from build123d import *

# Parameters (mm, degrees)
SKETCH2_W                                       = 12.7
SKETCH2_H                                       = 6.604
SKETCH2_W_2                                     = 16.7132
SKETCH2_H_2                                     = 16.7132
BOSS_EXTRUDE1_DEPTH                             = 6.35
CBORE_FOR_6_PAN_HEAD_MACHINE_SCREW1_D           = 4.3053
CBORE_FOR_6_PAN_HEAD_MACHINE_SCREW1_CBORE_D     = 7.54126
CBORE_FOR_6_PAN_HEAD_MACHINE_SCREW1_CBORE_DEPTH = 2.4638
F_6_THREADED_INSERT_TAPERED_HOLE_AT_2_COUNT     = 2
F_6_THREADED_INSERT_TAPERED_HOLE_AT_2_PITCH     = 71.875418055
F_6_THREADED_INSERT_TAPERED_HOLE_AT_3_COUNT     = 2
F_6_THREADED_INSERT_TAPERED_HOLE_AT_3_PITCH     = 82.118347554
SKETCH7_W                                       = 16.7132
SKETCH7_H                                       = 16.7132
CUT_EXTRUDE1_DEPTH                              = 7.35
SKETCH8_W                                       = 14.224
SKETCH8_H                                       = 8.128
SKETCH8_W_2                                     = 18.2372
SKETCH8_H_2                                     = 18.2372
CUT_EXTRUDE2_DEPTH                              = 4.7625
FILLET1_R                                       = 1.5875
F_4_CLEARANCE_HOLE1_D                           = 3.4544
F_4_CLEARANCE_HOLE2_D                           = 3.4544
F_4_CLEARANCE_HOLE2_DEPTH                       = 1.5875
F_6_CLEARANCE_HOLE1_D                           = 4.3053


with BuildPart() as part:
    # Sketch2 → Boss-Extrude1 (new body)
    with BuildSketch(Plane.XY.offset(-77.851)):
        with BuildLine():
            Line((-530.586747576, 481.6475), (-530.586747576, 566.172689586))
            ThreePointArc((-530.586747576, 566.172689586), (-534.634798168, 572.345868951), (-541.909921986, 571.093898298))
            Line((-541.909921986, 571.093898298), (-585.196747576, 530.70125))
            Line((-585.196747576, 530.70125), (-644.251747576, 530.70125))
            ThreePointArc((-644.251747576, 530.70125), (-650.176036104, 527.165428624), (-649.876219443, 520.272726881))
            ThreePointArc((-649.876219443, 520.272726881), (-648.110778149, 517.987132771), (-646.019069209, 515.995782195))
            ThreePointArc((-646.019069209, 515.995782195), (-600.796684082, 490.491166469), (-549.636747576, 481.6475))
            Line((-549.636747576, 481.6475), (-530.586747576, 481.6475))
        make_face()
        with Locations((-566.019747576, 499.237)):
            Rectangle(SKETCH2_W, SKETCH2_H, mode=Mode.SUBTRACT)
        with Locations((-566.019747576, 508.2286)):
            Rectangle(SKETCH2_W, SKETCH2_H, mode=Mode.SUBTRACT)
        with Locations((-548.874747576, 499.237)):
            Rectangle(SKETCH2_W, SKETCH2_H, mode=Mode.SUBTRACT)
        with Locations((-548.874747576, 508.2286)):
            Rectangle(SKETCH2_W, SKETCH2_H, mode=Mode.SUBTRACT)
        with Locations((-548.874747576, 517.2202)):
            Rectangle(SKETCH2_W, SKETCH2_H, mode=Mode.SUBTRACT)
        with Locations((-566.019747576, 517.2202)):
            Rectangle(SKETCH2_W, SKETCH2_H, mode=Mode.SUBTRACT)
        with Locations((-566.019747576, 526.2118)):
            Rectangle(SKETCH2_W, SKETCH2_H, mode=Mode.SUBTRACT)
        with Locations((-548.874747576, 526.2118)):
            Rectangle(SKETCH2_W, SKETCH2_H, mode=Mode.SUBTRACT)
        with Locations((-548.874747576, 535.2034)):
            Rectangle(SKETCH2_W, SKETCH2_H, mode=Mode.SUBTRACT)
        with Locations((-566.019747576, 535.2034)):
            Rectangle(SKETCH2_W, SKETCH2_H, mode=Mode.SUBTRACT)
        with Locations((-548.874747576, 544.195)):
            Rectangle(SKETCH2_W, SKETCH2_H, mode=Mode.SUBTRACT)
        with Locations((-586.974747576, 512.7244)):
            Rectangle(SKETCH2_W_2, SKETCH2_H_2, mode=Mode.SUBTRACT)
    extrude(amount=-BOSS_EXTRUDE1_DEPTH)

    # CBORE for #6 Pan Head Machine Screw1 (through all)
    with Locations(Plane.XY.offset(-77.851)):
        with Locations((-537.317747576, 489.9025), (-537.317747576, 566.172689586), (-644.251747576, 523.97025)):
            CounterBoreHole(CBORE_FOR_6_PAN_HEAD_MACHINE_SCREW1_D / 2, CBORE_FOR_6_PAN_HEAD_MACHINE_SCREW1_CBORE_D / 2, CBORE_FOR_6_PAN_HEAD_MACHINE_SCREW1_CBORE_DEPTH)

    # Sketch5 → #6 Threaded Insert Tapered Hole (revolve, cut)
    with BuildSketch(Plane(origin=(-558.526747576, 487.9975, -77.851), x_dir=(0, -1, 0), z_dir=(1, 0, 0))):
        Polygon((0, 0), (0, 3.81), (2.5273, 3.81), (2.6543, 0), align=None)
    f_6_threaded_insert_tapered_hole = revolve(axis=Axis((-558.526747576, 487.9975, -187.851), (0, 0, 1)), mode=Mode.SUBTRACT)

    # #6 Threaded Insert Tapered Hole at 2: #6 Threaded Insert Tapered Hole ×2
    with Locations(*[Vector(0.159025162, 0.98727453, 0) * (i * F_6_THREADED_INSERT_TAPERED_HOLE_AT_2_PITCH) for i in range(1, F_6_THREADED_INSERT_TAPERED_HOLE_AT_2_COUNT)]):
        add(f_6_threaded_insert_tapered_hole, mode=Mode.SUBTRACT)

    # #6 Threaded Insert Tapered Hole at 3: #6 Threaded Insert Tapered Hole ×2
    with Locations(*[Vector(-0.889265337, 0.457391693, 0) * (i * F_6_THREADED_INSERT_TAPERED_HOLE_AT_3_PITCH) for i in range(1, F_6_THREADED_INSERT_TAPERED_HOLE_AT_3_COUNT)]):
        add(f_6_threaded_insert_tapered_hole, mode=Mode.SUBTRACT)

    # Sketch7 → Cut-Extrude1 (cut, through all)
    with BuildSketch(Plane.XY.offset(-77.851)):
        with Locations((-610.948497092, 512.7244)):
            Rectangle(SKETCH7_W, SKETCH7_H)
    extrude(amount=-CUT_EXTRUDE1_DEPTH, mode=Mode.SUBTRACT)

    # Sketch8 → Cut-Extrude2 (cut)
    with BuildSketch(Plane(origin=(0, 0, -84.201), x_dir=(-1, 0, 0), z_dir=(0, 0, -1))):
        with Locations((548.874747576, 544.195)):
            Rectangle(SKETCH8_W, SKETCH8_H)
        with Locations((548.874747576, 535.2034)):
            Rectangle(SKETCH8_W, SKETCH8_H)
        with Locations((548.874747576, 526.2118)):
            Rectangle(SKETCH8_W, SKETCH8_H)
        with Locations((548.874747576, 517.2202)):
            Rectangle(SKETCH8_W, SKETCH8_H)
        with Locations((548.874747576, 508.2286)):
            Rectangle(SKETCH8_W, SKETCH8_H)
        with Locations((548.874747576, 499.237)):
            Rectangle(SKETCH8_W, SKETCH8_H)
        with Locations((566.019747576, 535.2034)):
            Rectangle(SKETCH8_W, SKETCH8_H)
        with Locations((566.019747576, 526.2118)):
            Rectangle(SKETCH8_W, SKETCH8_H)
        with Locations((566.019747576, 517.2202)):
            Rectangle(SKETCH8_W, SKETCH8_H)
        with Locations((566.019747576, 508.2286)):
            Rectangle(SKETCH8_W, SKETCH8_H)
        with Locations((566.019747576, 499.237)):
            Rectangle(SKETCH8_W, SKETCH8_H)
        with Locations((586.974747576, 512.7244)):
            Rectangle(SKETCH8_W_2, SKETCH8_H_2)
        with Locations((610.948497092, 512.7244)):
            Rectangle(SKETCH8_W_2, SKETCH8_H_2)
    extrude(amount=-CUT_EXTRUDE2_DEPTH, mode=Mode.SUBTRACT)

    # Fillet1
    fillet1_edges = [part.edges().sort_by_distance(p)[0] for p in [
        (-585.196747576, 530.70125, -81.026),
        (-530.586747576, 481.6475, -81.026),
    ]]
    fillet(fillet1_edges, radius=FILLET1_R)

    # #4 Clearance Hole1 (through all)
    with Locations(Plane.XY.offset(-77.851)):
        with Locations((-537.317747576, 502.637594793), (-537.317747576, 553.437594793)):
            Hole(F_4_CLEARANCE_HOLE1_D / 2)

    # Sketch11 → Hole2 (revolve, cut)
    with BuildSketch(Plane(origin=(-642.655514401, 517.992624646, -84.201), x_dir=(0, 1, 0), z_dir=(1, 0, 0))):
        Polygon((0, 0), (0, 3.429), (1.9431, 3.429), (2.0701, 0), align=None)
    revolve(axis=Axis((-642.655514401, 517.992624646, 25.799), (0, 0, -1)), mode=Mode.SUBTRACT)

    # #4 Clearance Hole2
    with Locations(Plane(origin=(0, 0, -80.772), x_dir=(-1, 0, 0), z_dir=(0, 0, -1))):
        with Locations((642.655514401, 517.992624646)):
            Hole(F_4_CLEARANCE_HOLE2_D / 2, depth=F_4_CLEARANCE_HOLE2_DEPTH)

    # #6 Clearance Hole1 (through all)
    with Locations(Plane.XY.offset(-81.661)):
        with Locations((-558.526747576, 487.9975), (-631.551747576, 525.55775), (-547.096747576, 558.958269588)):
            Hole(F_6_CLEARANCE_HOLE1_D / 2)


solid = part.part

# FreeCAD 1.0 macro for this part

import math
import FreeCAD as App
import Part
import Sketcher
from FreeCAD import Vector
Q = App.Units.Quantity


def edges_at(feature, points):
    """Names of the edges that pass closest to the given points."""
    edges = feature.Shape.Edges
    near = lambda p: min(range(len(edges)), key=lambda i: edges[i].distToShape(Part.Vertex(*p))[0])
    return sorted({f"Edge{near(p) + 1}" for p in points})

doc = App.newDocument("Part")
params = doc.addObject("Spreadsheet::Sheet", "Params")
for row, (alias, value) in enumerate([
    ("sketch1_radius", "6 in"),
    ("sketch1_width", "0.5 in"),
    ("sketch1_radius2", "0.265 in"),
    ("sketch1_width2", "0.75 in"),
    ("sketch1_height", "0.26 in"),
    ("pad1_length", "0.25 in"),
    ("hole_diameter", "0.1695 in"),
    ("hole_cbore_diameter", "0.2969 in"),
    ("hole_cbore_depth", "0.097 in"),
    ("sketch3_height", "0.15 in"),
    ("groove_angle", "360 deg"),
    ("linearpattern_pitch", "71.875418 mm"),
    ("linearpattern2_pitch", "82.118348 mm"),
    ("sketch4_width", "0.658 in"),
    ("sketch5_width", "0.56 in"),
    ("sketch5_height", "0.32 in"),
    ("sketch5_width2", "0.718 in"),
    ("pocket2_length", "0.1875 in"),
    ("fillet_radius", "0.0625 in"),
    ("sketch6_diameter", "0.136 in"),
    ("hole2_diameter", "0.136 in"),
    ("sketch7_height", "0.135 in"),
    ("groove2_angle", "360 deg"),
    ("sketch8_diameter", "0.136 in"),
    ("hole3_diameter", "0.136 in"),
    ("hole3_depth", "0.0625 in"),
    ("hole4_diameter", "0.1695 in"),
], start=1):
    params.set(f"A{row}", alias)
    params.set(f"B{row}", "=" + value)
    params.setAlias(f"B{row}", alias)

body = doc.addObject("PartDesign::Body", "Body")

sketch1 = doc.addObject("Sketcher::SketchObject", "Sketch")
body.addObject(sketch1)
sketch1.AttachmentSupport = (doc.XY_Plane, [""])
sketch1.MapMode = "FlatFace"
sketch1.AttachmentOffset = App.Placement(Vector(0, 0, -3.065 * 25.4), App.Rotation())
sketch1.addGeometry(Part.LineSegment(Vector(-531, 482, 0), Vector(-531, 566, 0)), False)
sketch1.addGeometry(Part.ArcOfCircle(Part.Circle(Vector(-537, 566, 0), Vector(0, 0, 1), 7), math.radians(0), math.radians(133)), False)
sketch1.addGeometry(Part.LineSegment(Vector(-542, 571, 0), Vector(-585, 531, 0)), False)
sketch1.addGeometry(Part.LineSegment(Vector(-585, 531, 0), Vector(-644, 531, 0)), False)
sketch1.addGeometry(Part.ArcOfCircle(Part.Circle(Vector(-644, 524, 0), Vector(0, 0, 1), 7), math.radians(90), math.radians(213)), False)
sketch1.addGeometry(Part.ArcOfCircle(Part.Circle(Vector(-634, 531, 0), Vector(0, 0, 1), 19), math.radians(-146.68), math.radians(-129.23)), False)
sketch1.addGeometry(Part.ArcOfCircle(Part.Circle(Vector(-550, 634, 0), Vector(0, 0, 1), 152), math.radians(-129), math.radians(-90)), False)
sketch1.addGeometry(Part.LineSegment(Vector(-550, 482, 0), Vector(-531, 482, 0)), False)
sketch1.addGeometry(Part.LineSegment(Vector(-579, 504, 0), Vector(-595, 504, 0)), False)
sketch1.addGeometry(Part.LineSegment(Vector(-595, 504, 0), Vector(-595, 521, 0)), False)
sketch1.addGeometry(Part.LineSegment(Vector(-595, 521, 0), Vector(-579, 521, 0)), False)
sketch1.addGeometry(Part.LineSegment(Vector(-579, 521, 0), Vector(-579, 504, 0)), False)
sketch1.addGeometry(Part.LineSegment(Vector(-560, 496, 0), Vector(-572, 496, 0)), False)
sketch1.addGeometry(Part.LineSegment(Vector(-572, 496, 0), Vector(-572, 503, 0)), False)
sketch1.addGeometry(Part.LineSegment(Vector(-572, 503, 0), Vector(-560, 503, 0)), False)
sketch1.addGeometry(Part.LineSegment(Vector(-560, 503, 0), Vector(-560, 496, 0)), False)
sketch1.addGeometry(Part.LineSegment(Vector(-560, 505, 0), Vector(-572, 505, 0)), False)
sketch1.addGeometry(Part.LineSegment(Vector(-572, 505, 0), Vector(-572, 512, 0)), False)
sketch1.addGeometry(Part.LineSegment(Vector(-572, 512, 0), Vector(-560, 512, 0)), False)
sketch1.addGeometry(Part.LineSegment(Vector(-560, 512, 0), Vector(-560, 505, 0)), False)
sketch1.addGeometry(Part.LineSegment(Vector(-543, 496, 0), Vector(-555, 496, 0)), False)
sketch1.addGeometry(Part.LineSegment(Vector(-555, 496, 0), Vector(-555, 503, 0)), False)
sketch1.addGeometry(Part.LineSegment(Vector(-555, 503, 0), Vector(-543, 503, 0)), False)
sketch1.addGeometry(Part.LineSegment(Vector(-543, 503, 0), Vector(-543, 496, 0)), False)
sketch1.addGeometry(Part.LineSegment(Vector(-543, 505, 0), Vector(-555, 505, 0)), False)
sketch1.addGeometry(Part.LineSegment(Vector(-555, 505, 0), Vector(-555, 512, 0)), False)
sketch1.addGeometry(Part.LineSegment(Vector(-555, 512, 0), Vector(-543, 512, 0)), False)
sketch1.addGeometry(Part.LineSegment(Vector(-543, 512, 0), Vector(-543, 505, 0)), False)
sketch1.addGeometry(Part.LineSegment(Vector(-560, 514, 0), Vector(-572, 514, 0)), False)
sketch1.addGeometry(Part.LineSegment(Vector(-572, 514, 0), Vector(-572, 521, 0)), False)
sketch1.addGeometry(Part.LineSegment(Vector(-572, 521, 0), Vector(-560, 521, 0)), False)
sketch1.addGeometry(Part.LineSegment(Vector(-560, 521, 0), Vector(-560, 514, 0)), False)
sketch1.addGeometry(Part.LineSegment(Vector(-543, 514, 0), Vector(-555, 514, 0)), False)
sketch1.addGeometry(Part.LineSegment(Vector(-555, 514, 0), Vector(-555, 521, 0)), False)
sketch1.addGeometry(Part.LineSegment(Vector(-555, 521, 0), Vector(-543, 521, 0)), False)
sketch1.addGeometry(Part.LineSegment(Vector(-543, 521, 0), Vector(-543, 514, 0)), False)
sketch1.addGeometry(Part.LineSegment(Vector(-560, 523, 0), Vector(-572, 523, 0)), False)
sketch1.addGeometry(Part.LineSegment(Vector(-572, 523, 0), Vector(-572, 530, 0)), False)
sketch1.addGeometry(Part.LineSegment(Vector(-572, 530, 0), Vector(-560, 530, 0)), False)
sketch1.addGeometry(Part.LineSegment(Vector(-560, 530, 0), Vector(-560, 523, 0)), False)
sketch1.addGeometry(Part.LineSegment(Vector(-543, 523, 0), Vector(-555, 523, 0)), False)
sketch1.addGeometry(Part.LineSegment(Vector(-555, 523, 0), Vector(-555, 530, 0)), False)
sketch1.addGeometry(Part.LineSegment(Vector(-555, 530, 0), Vector(-543, 530, 0)), False)
sketch1.addGeometry(Part.LineSegment(Vector(-543, 530, 0), Vector(-543, 523, 0)), False)
sketch1.addGeometry(Part.LineSegment(Vector(-560, 532, 0), Vector(-572, 532, 0)), False)
sketch1.addGeometry(Part.LineSegment(Vector(-572, 532, 0), Vector(-572, 539, 0)), False)
sketch1.addGeometry(Part.LineSegment(Vector(-572, 539, 0), Vector(-560, 539, 0)), False)
sketch1.addGeometry(Part.LineSegment(Vector(-560, 539, 0), Vector(-560, 532, 0)), False)
sketch1.addGeometry(Part.LineSegment(Vector(-543, 532, 0), Vector(-555, 532, 0)), False)
sketch1.addGeometry(Part.LineSegment(Vector(-555, 532, 0), Vector(-555, 539, 0)), False)
sketch1.addGeometry(Part.LineSegment(Vector(-555, 539, 0), Vector(-543, 539, 0)), False)
sketch1.addGeometry(Part.LineSegment(Vector(-543, 539, 0), Vector(-543, 532, 0)), False)
sketch1.addGeometry(Part.LineSegment(Vector(-543, 541, 0), Vector(-555, 541, 0)), False)
sketch1.addGeometry(Part.LineSegment(Vector(-555, 541, 0), Vector(-555, 547, 0)), False)
sketch1.addGeometry(Part.LineSegment(Vector(-555, 547, 0), Vector(-543, 547, 0)), False)
sketch1.addGeometry(Part.LineSegment(Vector(-543, 547, 0), Vector(-543, 541, 0)), False)
sketch1.addConstraint(Sketcher.Constraint("Tangent", 0, 2, 1, 1))
sketch1.addConstraint(Sketcher.Constraint("Tangent", 1, 2, 2, 1))
sketch1.addConstraint(Sketcher.Constraint("Coincident", 2, 2, 3, 1))
sketch1.addConstraint(Sketcher.Constraint("Tangent", 3, 2, 4, 1))
sketch1.addConstraint(Sketcher.Constraint("Tangent", 4, 2, 5, 1))
sketch1.addConstraint(Sketcher.Constraint("Tangent", 5, 2, 6, 1))
sketch1.addConstraint(Sketcher.Constraint("Tangent", 6, 2, 7, 1))
sketch1.addConstraint(Sketcher.Constraint("Coincident", 7, 2, 0, 1))
sketch1.addConstraint(Sketcher.Constraint("Coincident", 8, 2, 9, 1))
sketch1.addConstraint(Sketcher.Constraint("Coincident", 9, 2, 10, 1))
sketch1.addConstraint(Sketcher.Constraint("Coincident", 10, 2, 11, 1))
sketch1.addConstraint(Sketcher.Constraint("Coincident", 11, 2, 8, 1))
sketch1.addConstraint(Sketcher.Constraint("Coincident", 12, 2, 13, 1))
sketch1.addConstraint(Sketcher.Constraint("Coincident", 13, 2, 14, 1))
sketch1.addConstraint(Sketcher.Constraint("Coincident", 14, 2, 15, 1))
sketch1.addConstraint(Sketcher.Constraint("Coincident", 15, 2, 12, 1))
sketch1.addConstraint(Sketcher.Constraint("Coincident", 16, 2, 17, 1))
sketch1.addConstraint(Sketcher.Constraint("Coincident", 17, 2, 18, 1))
sketch1.addConstraint(Sketcher.Constraint("Coincident", 18, 2, 19, 1))
sketch1.addConstraint(Sketcher.Constraint("Coincident", 19, 2, 16, 1))
sketch1.addConstraint(Sketcher.Constraint("Coincident", 20, 2, 21, 1))
sketch1.addConstraint(Sketcher.Constraint("Coincident", 21, 2, 22, 1))
sketch1.addConstraint(Sketcher.Constraint("Coincident", 22, 2, 23, 1))
sketch1.addConstraint(Sketcher.Constraint("Coincident", 23, 2, 20, 1))
sketch1.addConstraint(Sketcher.Constraint("Coincident", 24, 2, 25, 1))
sketch1.addConstraint(Sketcher.Constraint("Coincident", 25, 2, 26, 1))
sketch1.addConstraint(Sketcher.Constraint("Coincident", 26, 2, 27, 1))
sketch1.addConstraint(Sketcher.Constraint("Coincident", 27, 2, 24, 1))
sketch1.addConstraint(Sketcher.Constraint("Coincident", 28, 2, 29, 1))
sketch1.addConstraint(Sketcher.Constraint("Coincident", 29, 2, 30, 1))
sketch1.addConstraint(Sketcher.Constraint("Coincident", 30, 2, 31, 1))
sketch1.addConstraint(Sketcher.Constraint("Coincident", 31, 2, 28, 1))
sketch1.addConstraint(Sketcher.Constraint("Coincident", 32, 2, 33, 1))
sketch1.addConstraint(Sketcher.Constraint("Coincident", 33, 2, 34, 1))
sketch1.addConstraint(Sketcher.Constraint("Coincident", 34, 2, 35, 1))
sketch1.addConstraint(Sketcher.Constraint("Coincident", 35, 2, 32, 1))
sketch1.addConstraint(Sketcher.Constraint("Coincident", 36, 2, 37, 1))
sketch1.addConstraint(Sketcher.Constraint("Coincident", 37, 2, 38, 1))
sketch1.addConstraint(Sketcher.Constraint("Coincident", 38, 2, 39, 1))
sketch1.addConstraint(Sketcher.Constraint("Coincident", 39, 2, 36, 1))
sketch1.addConstraint(Sketcher.Constraint("Coincident", 40, 2, 41, 1))
sketch1.addConstraint(Sketcher.Constraint("Coincident", 41, 2, 42, 1))
sketch1.addConstraint(Sketcher.Constraint("Coincident", 42, 2, 43, 1))
sketch1.addConstraint(Sketcher.Constraint("Coincident", 43, 2, 40, 1))
sketch1.addConstraint(Sketcher.Constraint("Coincident", 44, 2, 45, 1))
sketch1.addConstraint(Sketcher.Constraint("Coincident", 45, 2, 46, 1))
sketch1.addConstraint(Sketcher.Constraint("Coincident", 46, 2, 47, 1))
sketch1.addConstraint(Sketcher.Constraint("Coincident", 47, 2, 44, 1))
sketch1.addConstraint(Sketcher.Constraint("Coincident", 48, 2, 49, 1))
sketch1.addConstraint(Sketcher.Constraint("Coincident", 49, 2, 50, 1))
sketch1.addConstraint(Sketcher.Constraint("Coincident", 50, 2, 51, 1))
sketch1.addConstraint(Sketcher.Constraint("Coincident", 51, 2, 48, 1))
sketch1.addConstraint(Sketcher.Constraint("Coincident", 52, 2, 53, 1))
sketch1.addConstraint(Sketcher.Constraint("Coincident", 53, 2, 54, 1))
sketch1.addConstraint(Sketcher.Constraint("Coincident", 54, 2, 55, 1))
sketch1.addConstraint(Sketcher.Constraint("Coincident", 55, 2, 52, 1))
sketch1.addConstraint(Sketcher.Constraint("Vertical", 0))
sketch1.addConstraint(Sketcher.Constraint("Horizontal", 3))
sketch1.addConstraint(Sketcher.Constraint("Horizontal", 7))
sketch1.addConstraint(Sketcher.Constraint("Horizontal", 8))
sketch1.addConstraint(Sketcher.Constraint("Vertical", 9))
sketch1.addConstraint(Sketcher.Constraint("Horizontal", 10))
sketch1.addConstraint(Sketcher.Constraint("Vertical", 11))
sketch1.addConstraint(Sketcher.Constraint("Horizontal", 12))
sketch1.addConstraint(Sketcher.Constraint("Vertical", 13))
sketch1.addConstraint(Sketcher.Constraint("Horizontal", 14))
sketch1.addConstraint(Sketcher.Constraint("Vertical", 15))
sketch1.addConstraint(Sketcher.Constraint("Horizontal", 16))
sketch1.addConstraint(Sketcher.Constraint("Vertical", 17))
sketch1.addConstraint(Sketcher.Constraint("Horizontal", 18))
sketch1.addConstraint(Sketcher.Constraint("Vertical", 19))
sketch1.addConstraint(Sketcher.Constraint("Horizontal", 20))
sketch1.addConstraint(Sketcher.Constraint("Vertical", 21))
sketch1.addConstraint(Sketcher.Constraint("Horizontal", 22))
sketch1.addConstraint(Sketcher.Constraint("Vertical", 23))
sketch1.addConstraint(Sketcher.Constraint("Horizontal", 24))
sketch1.addConstraint(Sketcher.Constraint("Vertical", 25))
sketch1.addConstraint(Sketcher.Constraint("Horizontal", 26))
sketch1.addConstraint(Sketcher.Constraint("Vertical", 27))
sketch1.addConstraint(Sketcher.Constraint("Horizontal", 28))
sketch1.addConstraint(Sketcher.Constraint("Vertical", 29))
sketch1.addConstraint(Sketcher.Constraint("Horizontal", 30))
sketch1.addConstraint(Sketcher.Constraint("Vertical", 31))
sketch1.addConstraint(Sketcher.Constraint("Horizontal", 32))
sketch1.addConstraint(Sketcher.Constraint("Vertical", 33))
sketch1.addConstraint(Sketcher.Constraint("Horizontal", 34))
sketch1.addConstraint(Sketcher.Constraint("Vertical", 35))
sketch1.addConstraint(Sketcher.Constraint("Horizontal", 36))
sketch1.addConstraint(Sketcher.Constraint("Vertical", 37))
sketch1.addConstraint(Sketcher.Constraint("Horizontal", 38))
sketch1.addConstraint(Sketcher.Constraint("Vertical", 39))
sketch1.addConstraint(Sketcher.Constraint("Horizontal", 40))
sketch1.addConstraint(Sketcher.Constraint("Vertical", 41))
sketch1.addConstraint(Sketcher.Constraint("Horizontal", 42))
sketch1.addConstraint(Sketcher.Constraint("Vertical", 43))
sketch1.addConstraint(Sketcher.Constraint("Horizontal", 44))
sketch1.addConstraint(Sketcher.Constraint("Vertical", 45))
sketch1.addConstraint(Sketcher.Constraint("Horizontal", 46))
sketch1.addConstraint(Sketcher.Constraint("Vertical", 47))
sketch1.addConstraint(Sketcher.Constraint("Horizontal", 48))
sketch1.addConstraint(Sketcher.Constraint("Vertical", 49))
sketch1.addConstraint(Sketcher.Constraint("Horizontal", 50))
sketch1.addConstraint(Sketcher.Constraint("Vertical", 51))
sketch1.addConstraint(Sketcher.Constraint("Horizontal", 52))
sketch1.addConstraint(Sketcher.Constraint("Vertical", 53))
sketch1.addConstraint(Sketcher.Constraint("Horizontal", 54))
sketch1.addConstraint(Sketcher.Constraint("Vertical", 55))
sketch1.addConstraint(Sketcher.Constraint("Equal", 1, 4))
sketch1.addConstraint(Sketcher.Constraint("Horizontal", 5, 3, 2, 2))
sketch1.addConstraint(Sketcher.Constraint("Horizontal", 15, 2, 20, 2))
sketch1.addConstraint(Sketcher.Constraint("Horizontal", 14, 2, 21, 2))
sketch1.addConstraint(Sketcher.Constraint("Horizontal", 19, 2, 24, 2))
sketch1.addConstraint(Sketcher.Constraint("Horizontal", 18, 2, 25, 2))
sketch1.addConstraint(Sketcher.Constraint("Horizontal", 31, 2, 32, 2))
sketch1.addConstraint(Sketcher.Constraint("Horizontal", 30, 2, 33, 2))
sketch1.addConstraint(Sketcher.Constraint("Horizontal", 39, 2, 40, 2))
sketch1.addConstraint(Sketcher.Constraint("Horizontal", 38, 2, 41, 2))
sketch1.addConstraint(Sketcher.Constraint("Horizontal", 47, 2, 48, 2))
sketch1.addConstraint(Sketcher.Constraint("Horizontal", 46, 2, 49, 2))
sketch1.addConstraint(Sketcher.Constraint("Vertical", 13, 2, 16, 2))
sketch1.addConstraint(Sketcher.Constraint("Vertical", 15, 2, 18, 2))
sketch1.addConstraint(Sketcher.Constraint("Vertical", 21, 2, 24, 2))
sketch1.addConstraint(Sketcher.Constraint("Vertical", 23, 2, 26, 2))
sketch1.addConstraint(Sketcher.Constraint("Vertical", 17, 2, 28, 2))
sketch1.addConstraint(Sketcher.Constraint("Vertical", 19, 2, 30, 2))
sketch1.addConstraint(Sketcher.Constraint("Vertical", 25, 2, 32, 2))
sketch1.addConstraint(Sketcher.Constraint("Vertical", 27, 2, 34, 2))
sketch1.addConstraint(Sketcher.Constraint("Vertical", 29, 2, 36, 2))
sketch1.addConstraint(Sketcher.Constraint("Vertical", 31, 2, 38, 2))
sketch1.addConstraint(Sketcher.Constraint("Vertical", 33, 2, 40, 2))
sketch1.addConstraint(Sketcher.Constraint("Vertical", 35, 2, 42, 2))
sketch1.addConstraint(Sketcher.Constraint("Vertical", 37, 2, 44, 2))
sketch1.addConstraint(Sketcher.Constraint("Vertical", 39, 2, 46, 2))
sketch1.addConstraint(Sketcher.Constraint("Vertical", 41, 2, 48, 2))
sketch1.addConstraint(Sketcher.Constraint("Vertical", 43, 2, 50, 2))
sketch1.addConstraint(Sketcher.Constraint("Vertical", 49, 2, 52, 2))
sketch1.addConstraint(Sketcher.Constraint("Vertical", 51, 2, 54, 2))
sketch1.addConstraint(Sketcher.Constraint("Equal", 18, 20))
sketch1.addConstraint(Sketcher.Constraint("Equal", 10, 9))
sketch1.addConstraint(Sketcher.Constraint("Equal", 15, 17))
sketch1.addConstraint(Sketcher.Constraint("Equal", 27, 29))
sketch1.addConstraint(Sketcher.Constraint("Equal", 35, 37))
sketch1.addConstraint(Sketcher.Constraint("Equal", 43, 45))
sketch1.addConstraint(Sketcher.Constraint("Equal", 51, 53))
sketch1.addConstraint(Sketcher.Constraint("Radius", 6, Q("6 in")))
sketch1.addConstraint(Sketcher.Constraint("DistanceX", 12, 2, 12, 1, Q("0.5 in")))
sketch1.addConstraint(Sketcher.Constraint("Radius", 1, Q("0.265 in")))
sketch1.addConstraint(Sketcher.Constraint("DistanceX", 7, 1, 7, 2, Q("0.75 in")))
sketch1.addConstraint(Sketcher.Constraint("DistanceY", 13, 1, 13, 2, Q("0.26 in")))
sketch1.addConstraint(Sketcher.Constraint("DistanceX", 2, 2, 6, 2, Q("1.4 in")))
sketch1.addConstraint(Sketcher.Constraint("DistanceX", 3, 2, 3, 1, Q("2.325 in")))
sketch1.addConstraint(Sketcher.Constraint("DistanceX", 8, 2, 8, 1, Q("0.658 in")))
sketch1.addConstraint(Sketcher.Constraint("DistanceY", 12, 2, 10, 2, Q("0.99 in")))
sketch1.addConstraint(Sketcher.Constraint("DistanceX", 20, 2, 6, 2, Q("0.22 in")))
sketch1.addConstraint(Sketcher.Constraint("DistanceY", -1, 1, 8, 2, Q("19.857 in")))
sketch1.addConstraint(Sketcher.Constraint("DistanceY", -1, 1, 16, 2, Q("19.879 in")))
sketch1.addConstraint(Sketcher.Constraint("DistanceY", -1, 1, 28, 2, Q("20.233 in")))
sketch1.addConstraint(Sketcher.Constraint("DistanceY", -1, 1, 36, 2, Q("20.587 in")))
sketch1.addConstraint(Sketcher.Constraint("DistanceY", -1, 1, 44, 2, Q("20.941 in")))
sketch1.addConstraint(Sketcher.Constraint("DistanceY", -1, 1, 52, 2, Q("21.295 in")))
sketch1.addConstraint(Sketcher.Constraint("DistanceX", 8, 2, 2, 2, Q("0.399 in")))
sketch1.addConstraint(Sketcher.Constraint("DistanceX", 11, 2, 12, 2, Q("0.246 in")))
sketch1.addConstraint(Sketcher.Constraint("DistanceY", 6, 2, 12, 2, Q("0.5625 in")))
sketch1.addConstraint(Sketcher.Constraint("Radius", 5, 18.984165))
sketch1.addConstraint(Sketcher.Constraint("DistanceY", 0, 1, 0, 2, 84.52519))
sketch1.addConstraint(Sketcher.Constraint("DistanceX", 1, 2, -1, 1, 541.909922))
sketch1.setExpression("Constraints[144]", "Params.sketch1_radius")
sketch1.setExpression("Constraints[145]", "Params.sketch1_width")
sketch1.setExpression("Constraints[146]", "Params.sketch1_radius2")
sketch1.setExpression("Constraints[147]", "Params.sketch1_width2")
sketch1.setExpression("Constraints[148]", "Params.sketch1_height")
pad1 = doc.addObject("PartDesign::Pad", "Pad")
body.addObject(pad1)
pad1.Profile = sketch1
pad1.setExpression("Length", "Params.pad1_length")
pad1.Reversed = True

sketch2 = doc.addObject("Sketcher::SketchObject", "Sketch001")
body.addObject(sketch2)
sketch2.AttachmentSupport = (doc.XY_Plane, [""])
sketch2.MapMode = "FlatFace"
sketch2.AttachmentOffset = App.Placement(Vector(0, 0, -3.065 * 25.4), App.Rotation())
sketch2.addGeometry(Part.Circle(Vector(-537.3, 489.9, 0), Vector(0, 0, 1), 2.2), False)
sketch2.addGeometry(Part.Circle(Vector(-537.3, 566.2, 0), Vector(0, 0, 1), 2.2), False)
sketch2.addGeometry(Part.Circle(Vector(-644.3, 524, 0), Vector(0, 0, 1), 2.2), False)
sketch2.addConstraint(Sketcher.Constraint("Equal", 0, 1))
sketch2.addConstraint(Sketcher.Constraint("Equal", 1, 2))
sketch2.addConstraint(Sketcher.Constraint("Vertical", 0, 3, 1, 3))
sketch2.addConstraint(Sketcher.Constraint("Diameter", 0, Q("0.1695 in")))
sketch2.addConstraint(Sketcher.Constraint("DistanceX", 2, 3, 0, 3, Q("4.21 in")))
sketch2.addConstraint(Sketcher.Constraint("DistanceY", -1, 1, 0, 3, Q("19.2875 in")))
sketch2.addConstraint(Sketcher.Constraint("DistanceY", -1, 1, 1, 3, 566.17269))
sketch2.addConstraint(Sketcher.Constraint("DistanceY", -1, 1, 2, 3, 523.97025))
sketch2.addConstraint(Sketcher.Constraint("DistanceX", 0, 3, -1, 1, 537.317748))
doc.recompute()
hole = doc.addObject("PartDesign::Hole", "Hole")
body.addObject(hole)
hole.Profile = sketch2
hole.ThreadType = "None"
hole.setExpression("Diameter", "Params.hole_diameter")
hole.DepthType = "ThroughAll"
hole.HoleCutType = "Counterbore"
hole.setExpression("HoleCutDiameter", "Params.hole_cbore_diameter")
hole.setExpression("HoleCutDepth", "Params.hole_cbore_depth")

sketch3 = doc.addObject("Sketcher::SketchObject", "Sketch002")
body.addObject(sketch3)
sketch3.AttachmentSupport = (doc.YZ_Plane, [""])
sketch3.MapMode = "FlatFace"
sketch3.AttachmentOffset = App.Placement(Vector(0, 0, -558.526748), App.Rotation())
sketch3.addGeometry(Part.LineSegment(Vector(488, -81.7, 0), Vector(488, -77.9, 0)), False)
sketch3.addGeometry(Part.LineSegment(Vector(488, -77.9, 0), Vector(485.3, -77.9, 0)), False)
sketch3.addGeometry(Part.LineSegment(Vector(485.3, -77.9, 0), Vector(485.5, -81.7, 0)), False)
sketch3.addGeometry(Part.LineSegment(Vector(485.5, -81.7, 0), Vector(488, -81.7, 0)), False)
sketch3.addGeometry(Part.LineSegment(Vector(488, -81.7, 0), Vector(488, -77.9, 0)), True)
sketch3.addConstraint(Sketcher.Constraint("Coincident", 0, 2, 1, 1))
sketch3.addConstraint(Sketcher.Constraint("Coincident", 1, 2, 2, 1))
sketch3.addConstraint(Sketcher.Constraint("Coincident", 2, 2, 3, 1))
sketch3.addConstraint(Sketcher.Constraint("Coincident", 3, 2, 0, 1))
sketch3.addConstraint(Sketcher.Constraint("Vertical", 0))
sketch3.addConstraint(Sketcher.Constraint("Horizontal", 1))
sketch3.addConstraint(Sketcher.Constraint("Horizontal", 3))
sketch3.addConstraint(Sketcher.Constraint("Vertical", 4))
sketch3.addConstraint(Sketcher.Constraint("Coincident", 4, 1, 3, 2))
sketch3.addConstraint(Sketcher.Constraint("Horizontal", 1, 2, 4, 2))
sketch3.addConstraint(Sketcher.Constraint("DistanceY", 0, 1, 0, 2, Q("0.15 in")))
sketch3.addConstraint(Sketcher.Constraint("DistanceX", 1, 2, 1, 1, Q("0.1045 in")))
sketch3.addConstraint(Sketcher.Constraint("DistanceX", 3, 1, 3, 2, Q("0.0995 in")))
sketch3.addConstraint(Sketcher.Constraint("DistanceY", 0, 2, -1, 1, Q("3.065 in")))
sketch3.addConstraint(Sketcher.Constraint("DistanceX", -1, 1, 1, 2, Q("19.108 in")))
sketch3.setExpression("Constraints[10]", "Params.sketch3_height")
groove = doc.addObject("PartDesign::Groove", "Groove")
body.addObject(groove)
groove.Profile = sketch3
groove.ReferenceAxis = (sketch3, ["Axis0"])
groove.setExpression("Angle", "Params.groove_angle")
doc.recompute()

datumline = doc.addObject("PartDesign::Line", "DatumLine")
body.addObject(datumline)
datumline.Placement = App.Placement(Vector(0, 0, 0), App.Rotation(Vector(0, 0, 1), Vector(0.159025162, 0.98727453, 0)))
linearpattern = doc.addObject("PartDesign::LinearPattern", "LinearPattern")
body.addObject(linearpattern)
linearpattern.Originals = [groove]
linearpattern.Direction = (datumline, [""])
linearpattern.Mode = "offset"
linearpattern.setExpression("Offset", "Params.linearpattern_pitch")
linearpattern.Occurrences = 2
body.Tip = linearpattern
doc.recompute()

datumline2 = doc.addObject("PartDesign::Line", "DatumLine001")
body.addObject(datumline2)
datumline2.Placement = App.Placement(Vector(0, 0, 0), App.Rotation(Vector(0, 0, 1), Vector(-0.889265337, 0.457391693, 0)))
linearpattern2 = doc.addObject("PartDesign::LinearPattern", "LinearPattern001")
body.addObject(linearpattern2)
linearpattern2.Originals = [groove]
linearpattern2.Direction = (datumline2, [""])
linearpattern2.Mode = "offset"
linearpattern2.setExpression("Offset", "Params.linearpattern2_pitch")
linearpattern2.Occurrences = 2
body.Tip = linearpattern2

sketch4 = doc.addObject("Sketcher::SketchObject", "Sketch003")
body.addObject(sketch4)
sketch4.AttachmentSupport = (doc.XY_Plane, [""])
sketch4.MapMode = "FlatFace"
sketch4.AttachmentOffset = App.Placement(Vector(0, 0, -3.065 * 25.4), App.Rotation())
sketch4.addGeometry(Part.LineSegment(Vector(-619, 521, 0), Vector(-619, 504, 0)), False)
sketch4.addGeometry(Part.LineSegment(Vector(-619, 504, 0), Vector(-603, 504, 0)), False)
sketch4.addGeometry(Part.LineSegment(Vector(-603, 504, 0), Vector(-603, 521, 0)), False)
sketch4.addGeometry(Part.LineSegment(Vector(-603, 521, 0), Vector(-619, 521, 0)), False)
sketch4.addConstraint(Sketcher.Constraint("Coincident", 0, 2, 1, 1))
sketch4.addConstraint(Sketcher.Constraint("Coincident", 1, 2, 2, 1))
sketch4.addConstraint(Sketcher.Constraint("Coincident", 2, 2, 3, 1))
sketch4.addConstraint(Sketcher.Constraint("Coincident", 3, 2, 0, 1))
sketch4.addConstraint(Sketcher.Constraint("Vertical", 0))
sketch4.addConstraint(Sketcher.Constraint("Horizontal", 1))
sketch4.addConstraint(Sketcher.Constraint("Vertical", 2))
sketch4.addConstraint(Sketcher.Constraint("Horizontal", 3))
sketch4.addConstraint(Sketcher.Constraint("Equal", 3, 0))
sketch4.addConstraint(Sketcher.Constraint("DistanceX", 1, 1, 1, 2, Q("0.658 in")))
sketch4.addConstraint(Sketcher.Constraint("DistanceY", -1, 1, 0, 2, Q("19.857 in")))
sketch4.addConstraint(Sketcher.Constraint("DistanceX", 0, 2, -1, 1, 619.305097))
sketch4.setExpression("Constraints[9]", "Params.sketch4_width")
pocket1 = doc.addObject("PartDesign::Pocket", "Pocket")
body.addObject(pocket1)
pocket1.Profile = sketch4
pocket1.Type = "ThroughAll"

sketch5 = doc.addObject("Sketcher::SketchObject", "Sketch004")
body.addObject(sketch5)
sketch5.AttachmentSupport = (doc.XY_Plane, [""])
sketch5.MapMode = "FlatFace"
sketch5.AttachmentOffset = App.Placement(Vector(0, 0, -3.315 * 25.4), App.Rotation())
sketch5.addGeometry(Part.LineSegment(Vector(-542, 548, 0), Vector(-542, 540, 0)), False)
sketch5.addGeometry(Part.LineSegment(Vector(-542, 540, 0), Vector(-556, 540, 0)), False)
sketch5.addGeometry(Part.LineSegment(Vector(-556, 540, 0), Vector(-556, 548, 0)), False)
sketch5.addGeometry(Part.LineSegment(Vector(-556, 548, 0), Vector(-542, 548, 0)), False)
sketch5.addGeometry(Part.LineSegment(Vector(-542, 539, 0), Vector(-542, 531, 0)), False)
sketch5.addGeometry(Part.LineSegment(Vector(-542, 531, 0), Vector(-556, 531, 0)), False)
sketch5.addGeometry(Part.LineSegment(Vector(-556, 531, 0), Vector(-556, 539, 0)), False)
sketch5.addGeometry(Part.LineSegment(Vector(-556, 539, 0), Vector(-542, 539, 0)), False)
sketch5.addGeometry(Part.LineSegment(Vector(-542, 530, 0), Vector(-542, 522, 0)), False)
sketch5.addGeometry(Part.LineSegment(Vector(-542, 522, 0), Vector(-556, 522, 0)), False)
sketch5.addGeometry(Part.LineSegment(Vector(-556, 522, 0), Vector(-556, 530, 0)), False)
sketch5.addGeometry(Part.LineSegment(Vector(-556, 530, 0), Vector(-542, 530, 0)), False)
sketch5.addGeometry(Part.LineSegment(Vector(-542, 521, 0), Vector(-542, 513, 0)), False)
sketch5.addGeometry(Part.LineSegment(Vector(-542, 513, 0), Vector(-556, 513, 0)), False)
sketch5.addGeometry(Part.LineSegment(Vector(-556, 513, 0), Vector(-556, 521, 0)), False)
sketch5.addGeometry(Part.LineSegment(Vector(-556, 521, 0), Vector(-542, 521, 0)), False)
sketch5.addGeometry(Part.LineSegment(Vector(-542, 512, 0), Vector(-542, 504, 0)), False)
sketch5.addGeometry(Part.LineSegment(Vector(-542, 504, 0), Vector(-556, 504, 0)), False)
sketch5.addGeometry(Part.LineSegment(Vector(-556, 504, 0), Vector(-556, 512, 0)), False)
sketch5.addGeometry(Part.LineSegment(Vector(-556, 512, 0), Vector(-542, 512, 0)), False)
sketch5.addGeometry(Part.LineSegment(Vector(-542, 503, 0), Vector(-542, 495, 0)), False)
sketch5.addGeometry(Part.LineSegment(Vector(-542, 495, 0), Vector(-556, 495, 0)), False)
sketch5.addGeometry(Part.LineSegment(Vector(-556, 495, 0), Vector(-556, 503, 0)), False)
sketch5.addGeometry(Part.LineSegment(Vector(-556, 503, 0), Vector(-542, 503, 0)), False)
sketch5.addGeometry(Part.LineSegment(Vector(-559, 539, 0), Vector(-559, 531, 0)), False)
sketch5.addGeometry(Part.LineSegment(Vector(-559, 531, 0), Vector(-573, 531, 0)), False)
sketch5.addGeometry(Part.LineSegment(Vector(-573, 531, 0), Vector(-573, 539, 0)), False)
sketch5.addGeometry(Part.LineSegment(Vector(-573, 539, 0), Vector(-559, 539, 0)), False)
sketch5.addGeometry(Part.LineSegment(Vector(-559, 530, 0), Vector(-559, 522, 0)), False)
sketch5.addGeometry(Part.LineSegment(Vector(-559, 522, 0), Vector(-573, 522, 0)), False)
sketch5.addGeometry(Part.LineSegment(Vector(-573, 522, 0), Vector(-573, 530, 0)), False)
sketch5.addGeometry(Part.LineSegment(Vector(-573, 530, 0), Vector(-559, 530, 0)), False)
sketch5.addGeometry(Part.LineSegment(Vector(-559, 521, 0), Vector(-559, 513, 0)), False)
sketch5.addGeometry(Part.LineSegment(Vector(-559, 513, 0), Vector(-573, 513, 0)), False)
sketch5.addGeometry(Part.LineSegment(Vector(-573, 513, 0), Vector(-573, 521, 0)), False)
sketch5.addGeometry(Part.LineSegment(Vector(-573, 521, 0), Vector(-559, 521, 0)), False)
sketch5.addGeometry(Part.LineSegment(Vector(-559, 512, 0), Vector(-559, 504, 0)), False)
sketch5.addGeometry(Part.LineSegment(Vector(-559, 504, 0), Vector(-573, 504, 0)), False)
sketch5.addGeometry(Part.LineSegment(Vector(-573, 504, 0), Vector(-573, 512, 0)), False)
sketch5.addGeometry(Part.LineSegment(Vector(-573, 512, 0), Vector(-559, 512, 0)), False)
sketch5.addGeometry(Part.LineSegment(Vector(-559, 503, 0), Vector(-559, 495, 0)), False)
sketch5.addGeometry(Part.LineSegment(Vector(-559, 495, 0), Vector(-573, 495, 0)), False)
sketch5.addGeometry(Part.LineSegment(Vector(-573, 495, 0), Vector(-573, 503, 0)), False)
sketch5.addGeometry(Part.LineSegment(Vector(-573, 503, 0), Vector(-559, 503, 0)), False)
sketch5.addGeometry(Part.LineSegment(Vector(-578, 522, 0), Vector(-578, 504, 0)), False)
sketch5.addGeometry(Part.LineSegment(Vector(-578, 504, 0), Vector(-596, 504, 0)), False)
sketch5.addGeometry(Part.LineSegment(Vector(-596, 504, 0), Vector(-596, 522, 0)), False)
sketch5.addGeometry(Part.LineSegment(Vector(-596, 522, 0), Vector(-578, 522, 0)), False)
sketch5.addGeometry(Part.LineSegment(Vector(-602, 522, 0), Vector(-602, 504, 0)), False)
sketch5.addGeometry(Part.LineSegment(Vector(-602, 504, 0), Vector(-620, 504, 0)), False)
sketch5.addGeometry(Part.LineSegment(Vector(-620, 504, 0), Vector(-620, 522, 0)), False)
sketch5.addGeometry(Part.LineSegment(Vector(-620, 522, 0), Vector(-602, 522, 0)), False)
sketch5.addConstraint(Sketcher.Constraint("Coincident", 0, 2, 1, 1))
sketch5.addConstraint(Sketcher.Constraint("Coincident", 1, 2, 2, 1))
sketch5.addConstraint(Sketcher.Constraint("Coincident", 2, 2, 3, 1))
sketch5.addConstraint(Sketcher.Constraint("Coincident", 3, 2, 0, 1))
sketch5.addConstraint(Sketcher.Constraint("Coincident", 4, 2, 5, 1))
sketch5.addConstraint(Sketcher.Constraint("Coincident", 5, 2, 6, 1))
sketch5.addConstraint(Sketcher.Constraint("Coincident", 6, 2, 7, 1))
sketch5.addConstraint(Sketcher.Constraint("Coincident", 7, 2, 4, 1))
sketch5.addConstraint(Sketcher.Constraint("Coincident", 8, 2, 9, 1))
sketch5.addConstraint(Sketcher.Constraint("Coincident", 9, 2, 10, 1))
sketch5.addConstraint(Sketcher.Constraint("Coincident", 10, 2, 11, 1))
sketch5.addConstraint(Sketcher.Constraint("Coincident", 11, 2, 8, 1))
sketch5.addConstraint(Sketcher.Constraint("Coincident", 12, 2, 13, 1))
sketch5.addConstraint(Sketcher.Constraint("Coincident", 13, 2, 14, 1))
sketch5.addConstraint(Sketcher.Constraint("Coincident", 14, 2, 15, 1))
sketch5.addConstraint(Sketcher.Constraint("Coincident", 15, 2, 12, 1))
sketch5.addConstraint(Sketcher.Constraint("Coincident", 16, 2, 17, 1))
sketch5.addConstraint(Sketcher.Constraint("Coincident", 17, 2, 18, 1))
sketch5.addConstraint(Sketcher.Constraint("Coincident", 18, 2, 19, 1))
sketch5.addConstraint(Sketcher.Constraint("Coincident", 19, 2, 16, 1))
sketch5.addConstraint(Sketcher.Constraint("Coincident", 20, 2, 21, 1))
sketch5.addConstraint(Sketcher.Constraint("Coincident", 21, 2, 22, 1))
sketch5.addConstraint(Sketcher.Constraint("Coincident", 22, 2, 23, 1))
sketch5.addConstraint(Sketcher.Constraint("Coincident", 23, 2, 20, 1))
sketch5.addConstraint(Sketcher.Constraint("Coincident", 24, 2, 25, 1))
sketch5.addConstraint(Sketcher.Constraint("Coincident", 25, 2, 26, 1))
sketch5.addConstraint(Sketcher.Constraint("Coincident", 26, 2, 27, 1))
sketch5.addConstraint(Sketcher.Constraint("Coincident", 27, 2, 24, 1))
sketch5.addConstraint(Sketcher.Constraint("Coincident", 28, 2, 29, 1))
sketch5.addConstraint(Sketcher.Constraint("Coincident", 29, 2, 30, 1))
sketch5.addConstraint(Sketcher.Constraint("Coincident", 30, 2, 31, 1))
sketch5.addConstraint(Sketcher.Constraint("Coincident", 31, 2, 28, 1))
sketch5.addConstraint(Sketcher.Constraint("Coincident", 32, 2, 33, 1))
sketch5.addConstraint(Sketcher.Constraint("Coincident", 33, 2, 34, 1))
sketch5.addConstraint(Sketcher.Constraint("Coincident", 34, 2, 35, 1))
sketch5.addConstraint(Sketcher.Constraint("Coincident", 35, 2, 32, 1))
sketch5.addConstraint(Sketcher.Constraint("Coincident", 36, 2, 37, 1))
sketch5.addConstraint(Sketcher.Constraint("Coincident", 37, 2, 38, 1))
sketch5.addConstraint(Sketcher.Constraint("Coincident", 38, 2, 39, 1))
sketch5.addConstraint(Sketcher.Constraint("Coincident", 39, 2, 36, 1))
sketch5.addConstraint(Sketcher.Constraint("Coincident", 40, 2, 41, 1))
sketch5.addConstraint(Sketcher.Constraint("Coincident", 41, 2, 42, 1))
sketch5.addConstraint(Sketcher.Constraint("Coincident", 42, 2, 43, 1))
sketch5.addConstraint(Sketcher.Constraint("Coincident", 43, 2, 40, 1))
sketch5.addConstraint(Sketcher.Constraint("Coincident", 44, 2, 45, 1))
sketch5.addConstraint(Sketcher.Constraint("Coincident", 45, 2, 46, 1))
sketch5.addConstraint(Sketcher.Constraint("Coincident", 46, 2, 47, 1))
sketch5.addConstraint(Sketcher.Constraint("Coincident", 47, 2, 44, 1))
sketch5.addConstraint(Sketcher.Constraint("Coincident", 48, 2, 49, 1))
sketch5.addConstraint(Sketcher.Constraint("Coincident", 49, 2, 50, 1))
sketch5.addConstraint(Sketcher.Constraint("Coincident", 50, 2, 51, 1))
sketch5.addConstraint(Sketcher.Constraint("Coincident", 51, 2, 48, 1))
sketch5.addConstraint(Sketcher.Constraint("Vertical", 0))
sketch5.addConstraint(Sketcher.Constraint("Horizontal", 1))
sketch5.addConstraint(Sketcher.Constraint("Vertical", 2))
sketch5.addConstraint(Sketcher.Constraint("Horizontal", 3))
sketch5.addConstraint(Sketcher.Constraint("Vertical", 4))
sketch5.addConstraint(Sketcher.Constraint("Horizontal", 5))
sketch5.addConstraint(Sketcher.Constraint("Vertical", 6))
sketch5.addConstraint(Sketcher.Constraint("Horizontal", 7))
sketch5.addConstraint(Sketcher.Constraint("Vertical", 8))
sketch5.addConstraint(Sketcher.Constraint("Horizontal", 9))
sketch5.addConstraint(Sketcher.Constraint("Vertical", 10))
sketch5.addConstraint(Sketcher.Constraint("Horizontal", 11))
sketch5.addConstraint(Sketcher.Constraint("Vertical", 12))
sketch5.addConstraint(Sketcher.Constraint("Horizontal", 13))
sketch5.addConstraint(Sketcher.Constraint("Vertical", 14))
sketch5.addConstraint(Sketcher.Constraint("Horizontal", 15))
sketch5.addConstraint(Sketcher.Constraint("Vertical", 16))
sketch5.addConstraint(Sketcher.Constraint("Horizontal", 17))
sketch5.addConstraint(Sketcher.Constraint("Vertical", 18))
sketch5.addConstraint(Sketcher.Constraint("Horizontal", 19))
sketch5.addConstraint(Sketcher.Constraint("Vertical", 20))
sketch5.addConstraint(Sketcher.Constraint("Horizontal", 21))
sketch5.addConstraint(Sketcher.Constraint("Vertical", 22))
sketch5.addConstraint(Sketcher.Constraint("Horizontal", 23))
sketch5.addConstraint(Sketcher.Constraint("Vertical", 24))
sketch5.addConstraint(Sketcher.Constraint("Horizontal", 25))
sketch5.addConstraint(Sketcher.Constraint("Vertical", 26))
sketch5.addConstraint(Sketcher.Constraint("Horizontal", 27))
sketch5.addConstraint(Sketcher.Constraint("Vertical", 28))
sketch5.addConstraint(Sketcher.Constraint("Horizontal", 29))
sketch5.addConstraint(Sketcher.Constraint("Vertical", 30))
sketch5.addConstraint(Sketcher.Constraint("Horizontal", 31))
sketch5.addConstraint(Sketcher.Constraint("Vertical", 32))
sketch5.addConstraint(Sketcher.Constraint("Horizontal", 33))
sketch5.addConstraint(Sketcher.Constraint("Vertical", 34))
sketch5.addConstraint(Sketcher.Constraint("Horizontal", 35))
sketch5.addConstraint(Sketcher.Constraint("Vertical", 36))
sketch5.addConstraint(Sketcher.Constraint("Horizontal", 37))
sketch5.addConstraint(Sketcher.Constraint("Vertical", 38))
sketch5.addConstraint(Sketcher.Constraint("Horizontal", 39))
sketch5.addConstraint(Sketcher.Constraint("Vertical", 40))
sketch5.addConstraint(Sketcher.Constraint("Horizontal", 41))
sketch5.addConstraint(Sketcher.Constraint("Vertical", 42))
sketch5.addConstraint(Sketcher.Constraint("Horizontal", 43))
sketch5.addConstraint(Sketcher.Constraint("Vertical", 44))
sketch5.addConstraint(Sketcher.Constraint("Horizontal", 45))
sketch5.addConstraint(Sketcher.Constraint("Vertical", 46))
sketch5.addConstraint(Sketcher.Constraint("Horizontal", 47))
sketch5.addConstraint(Sketcher.Constraint("Vertical", 48))
sketch5.addConstraint(Sketcher.Constraint("Horizontal", 49))
sketch5.addConstraint(Sketcher.Constraint("Vertical", 50))
sketch5.addConstraint(Sketcher.Constraint("Horizontal", 51))
sketch5.addConstraint(Sketcher.Constraint("Horizontal", 5, 2, 24, 2))
sketch5.addConstraint(Sketcher.Constraint("Horizontal", 7, 2, 26, 2))
sketch5.addConstraint(Sketcher.Constraint("Horizontal", 9, 2, 28, 2))
sketch5.addConstraint(Sketcher.Constraint("Horizontal", 11, 2, 30, 2))
sketch5.addConstraint(Sketcher.Constraint("Horizontal", 13, 2, 32, 2))
sketch5.addConstraint(Sketcher.Constraint("Horizontal", 15, 2, 34, 2))
sketch5.addConstraint(Sketcher.Constraint("Horizontal", 17, 2, 36, 2))
sketch5.addConstraint(Sketcher.Constraint("Horizontal", 19, 2, 38, 2))
sketch5.addConstraint(Sketcher.Constraint("Horizontal", 21, 2, 40, 2))
sketch5.addConstraint(Sketcher.Constraint("Horizontal", 23, 2, 42, 2))
sketch5.addConstraint(Sketcher.Constraint("Horizontal", 45, 2, 48, 2))
sketch5.addConstraint(Sketcher.Constraint("Horizontal", 47, 2, 50, 2))
sketch5.addConstraint(Sketcher.Constraint("Vertical", 3, 2, 4, 2))
sketch5.addConstraint(Sketcher.Constraint("Vertical", 2, 2, 5, 2))
sketch5.addConstraint(Sketcher.Constraint("Vertical", 7, 2, 8, 2))
sketch5.addConstraint(Sketcher.Constraint("Vertical", 6, 2, 9, 2))
sketch5.addConstraint(Sketcher.Constraint("Vertical", 11, 2, 12, 2))
sketch5.addConstraint(Sketcher.Constraint("Vertical", 10, 2, 13, 2))
sketch5.addConstraint(Sketcher.Constraint("Vertical", 15, 2, 16, 2))
sketch5.addConstraint(Sketcher.Constraint("Vertical", 14, 2, 17, 2))
sketch5.addConstraint(Sketcher.Constraint("Vertical", 19, 2, 20, 2))
sketch5.addConstraint(Sketcher.Constraint("Vertical", 18, 2, 21, 2))
sketch5.addConstraint(Sketcher.Constraint("Vertical", 27, 2, 28, 2))
sketch5.addConstraint(Sketcher.Constraint("Vertical", 26, 2, 29, 2))
sketch5.addConstraint(Sketcher.Constraint("Vertical", 31, 2, 32, 2))
sketch5.addConstraint(Sketcher.Constraint("Vertical", 30, 2, 33, 2))
sketch5.addConstraint(Sketcher.Constraint("Vertical", 35, 2, 36, 2))
sketch5.addConstraint(Sketcher.Constraint("Vertical", 34, 2, 37, 2))
sketch5.addConstraint(Sketcher.Constraint("Vertical", 39, 2, 40, 2))
sketch5.addConstraint(Sketcher.Constraint("Vertical", 38, 2, 41, 2))
sketch5.addConstraint(Sketcher.Constraint("Equal", 23, 25))
sketch5.addConstraint(Sketcher.Constraint("Equal", 47, 49))
sketch5.addConstraint(Sketcher.Constraint("Equal", 2, 4))
sketch5.addConstraint(Sketcher.Constraint("Equal", 6, 8))
sketch5.addConstraint(Sketcher.Constraint("Equal", 10, 12))
sketch5.addConstraint(Sketcher.Constraint("Equal", 14, 16))
sketch5.addConstraint(Sketcher.Constraint("Equal", 18, 20))
sketch5.addConstraint(Sketcher.Constraint("Equal", 51, 44))
sketch5.addConstraint(Sketcher.Constraint("DistanceX", 1, 2, 1, 1, Q("0.56 in")))
sketch5.addConstraint(Sketcher.Constraint("DistanceY", 0, 2, 0, 1, Q("0.32 in")))
sketch5.addConstraint(Sketcher.Constraint("DistanceX", 45, 2, 45, 1, Q("0.718 in")))
sketch5.addConstraint(Sketcher.Constraint("DistanceY", -1, 1, 0, 2, Q("21.265 in")))
sketch5.addConstraint(Sketcher.Constraint("DistanceY", -1, 1, 4, 2, Q("20.911 in")))
sketch5.addConstraint(Sketcher.Constraint("DistanceY", -1, 1, 8, 2, Q("20.557 in")))
sketch5.addConstraint(Sketcher.Constraint("DistanceY", -1, 1, 12, 2, Q("20.203 in")))
sketch5.addConstraint(Sketcher.Constraint("DistanceY", -1, 1, 16, 2, Q("19.849 in")))
sketch5.addConstraint(Sketcher.Constraint("DistanceY", -1, 1, 20, 2, Q("19.495 in")))
sketch5.addConstraint(Sketcher.Constraint("DistanceY", -1, 1, 44, 2, Q("19.827 in")))
sketch5.addConstraint(Sketcher.Constraint("DistanceX", 24, 2, 5, 2, Q("0.115 in")))
sketch5.addConstraint(Sketcher.Constraint("DistanceX", 44, 2, 42, 2, Q("0.186 in")))
sketch5.addConstraint(Sketcher.Constraint("DistanceX", 48, 2, 45, 2, 5.73655))
sketch5.addConstraint(Sketcher.Constraint("DistanceX", 0, 2, -1, 1, 541.762748))
sketch5.setExpression("Constraints[142]", "Params.sketch5_width")
sketch5.setExpression("Constraints[143]", "Params.sketch5_height")
sketch5.setExpression("Constraints[144]", "Params.sketch5_width2")
pocket2 = doc.addObject("PartDesign::Pocket", "Pocket001")
body.addObject(pocket2)
pocket2.Profile = sketch5
pocket2.setExpression("Length", "Params.pocket2_length")
pocket2.Reversed = True
doc.recompute()

fillet = doc.addObject("PartDesign::Fillet", "Fillet")
body.addObject(fillet)
fillet.Base = (pocket2, edges_at(pocket2, [(-585.197, 530.701, -81.026), (-530.587, 481.647, -81.026)]))
fillet.setExpression("Radius", "Params.fillet_radius")

sketch6 = doc.addObject("Sketcher::SketchObject", "Sketch005")
body.addObject(sketch6)
sketch6.AttachmentSupport = (doc.XY_Plane, [""])
sketch6.MapMode = "FlatFace"
sketch6.AttachmentOffset = App.Placement(Vector(0, 0, -3.065 * 25.4), App.Rotation())
sketch6.addGeometry(Part.Circle(Vector(-537.3, 502.6, 0), Vector(0, 0, 1), 1.7), False)
sketch6.addGeometry(Part.Circle(Vector(-537.3, 553.4, 0), Vector(0, 0, 1), 1.7), False)
sketch6.addConstraint(Sketcher.Constraint("Equal", 0, 1))
sketch6.addConstraint(Sketcher.Constraint("Vertical", 0, 3, 1, 3))
sketch6.addConstraint(Sketcher.Constraint("Diameter", 0, Q("0.136 in")))
sketch6.addConstraint(Sketcher.Constraint("DistanceY", 0, 3, 1, 3, Q("2 in")))
sketch6.addConstraint(Sketcher.Constraint("DistanceX", 0, 3, -1, 1, 537.317748))
sketch6.addConstraint(Sketcher.Constraint("DistanceY", -1, 1, 0, 3, 502.637595))
sketch6.setExpression("Constraints[2]", "Params.sketch6_diameter")
doc.recompute()
hole2 = doc.addObject("PartDesign::Hole", "Hole001")
body.addObject(hole2)
hole2.Profile = sketch6
hole2.ThreadType = "None"
hole2.setExpression("Diameter", "Params.hole2_diameter")
hole2.DepthType = "ThroughAll"

sketch7 = doc.addObject("Sketcher::SketchObject", "Sketch006")
body.addObject(sketch7)
sketch7.AttachmentSupport = (doc.YZ_Plane, [""])
sketch7.MapMode = "FlatFace"
sketch7.AttachmentOffset = App.Placement(Vector(0, 0, -642.655514), App.Rotation())
sketch7.addGeometry(Part.LineSegment(Vector(518, -80.8, 0), Vector(518, -84.2, 0)), False)
sketch7.addGeometry(Part.LineSegment(Vector(518, -84.2, 0), Vector(520.1, -84.2, 0)), False)
sketch7.addGeometry(Part.LineSegment(Vector(520.1, -84.2, 0), Vector(519.9, -80.8, 0)), False)
sketch7.addGeometry(Part.LineSegment(Vector(519.9, -80.8, 0), Vector(518, -80.8, 0)), False)
sketch7.addGeometry(Part.LineSegment(Vector(518, -80.8, 0), Vector(518, -84.2, 0)), True)
sketch7.addConstraint(Sketcher.Constraint("Coincident", 0, 2, 1, 1))
sketch7.addConstraint(Sketcher.Constraint("Coincident", 1, 2, 2, 1))
sketch7.addConstraint(Sketcher.Constraint("Coincident", 2, 2, 3, 1))
sketch7.addConstraint(Sketcher.Constraint("Coincident", 3, 2, 0, 1))
sketch7.addConstraint(Sketcher.Constraint("Vertical", 0))
sketch7.addConstraint(Sketcher.Constraint("Horizontal", 1))
sketch7.addConstraint(Sketcher.Constraint("Horizontal", 3))
sketch7.addConstraint(Sketcher.Constraint("Vertical", 4))
sketch7.addConstraint(Sketcher.Constraint("Coincident", 4, 1, 3, 2))
sketch7.addConstraint(Sketcher.Constraint("Horizontal", 1, 2, 4, 2))
sketch7.addConstraint(Sketcher.Constraint("DistanceY", 0, 2, 0, 1, Q("0.135 in")))
sketch7.addConstraint(Sketcher.Constraint("DistanceY", 2, 2, -1, 1, Q("3.18 in")))
sketch7.addConstraint(Sketcher.Constraint("DistanceX", 1, 1, 1, 2, Q("0.0815 in")))
sketch7.addConstraint(Sketcher.Constraint("DistanceX", 3, 2, 3, 1, Q("0.0765 in")))
sketch7.addConstraint(Sketcher.Constraint("DistanceX", -1, 1, 0, 2, 517.992625))
sketch7.setExpression("Constraints[10]", "Params.sketch7_height")
groove2 = doc.addObject("PartDesign::Groove", "Groove001")
body.addObject(groove2)
groove2.Profile = sketch7
groove2.ReferenceAxis = (sketch7, ["Axis0"])
groove2.setExpression("Angle", "Params.groove2_angle")

sketch8 = doc.addObject("Sketcher::SketchObject", "Sketch007")
body.addObject(sketch8)
sketch8.AttachmentSupport = (doc.XY_Plane, [""])
sketch8.MapMode = "FlatFace"
sketch8.AttachmentOffset = App.Placement(Vector(0, 0, -3.18 * 25.4), App.Rotation())
sketch8.addGeometry(Part.Circle(Vector(-642.7, 518, 0), Vector(0, 0, 1), 1.7), False)
sketch8.addConstraint(Sketcher.Constraint("Diameter", 0, Q("0.136 in")))
sketch8.addConstraint(Sketcher.Constraint("DistanceX", 0, 3, -1, 1, 642.655514))
sketch8.addConstraint(Sketcher.Constraint("DistanceY", -1, 1, 0, 3, 517.992625))
sketch8.setExpression("Constraints[0]", "Params.sketch8_diameter")
doc.recompute()
hole3 = doc.addObject("PartDesign::Hole", "Hole002")
body.addObject(hole3)
hole3.Profile = sketch8
hole3.ThreadType = "None"
hole3.setExpression("Diameter", "Params.hole3_diameter")
hole3.DepthType = "Dimension"
hole3.setExpression("Depth", "Params.hole3_depth")
hole3.DrillPoint = "Flat"
hole3.Reversed = True

sketch9 = doc.addObject("Sketcher::SketchObject", "Sketch008")
body.addObject(sketch9)
sketch9.AttachmentSupport = (doc.XY_Plane, [""])
sketch9.MapMode = "FlatFace"
sketch9.AttachmentOffset = App.Placement(Vector(0, 0, -3.215 * 25.4), App.Rotation())
sketch9.addGeometry(Part.Circle(Vector(-558.5, 488, 0), Vector(0, 0, 1), 2.2), False)
sketch9.addGeometry(Part.Circle(Vector(-631.6, 525.6, 0), Vector(0, 0, 1), 2.2), False)
sketch9.addGeometry(Part.Circle(Vector(-547.1, 559, 0), Vector(0, 0, 1), 2.2), False)
sketch9.addConstraint(Sketcher.Constraint("Equal", 0, 1))
sketch9.addConstraint(Sketcher.Constraint("Equal", 1, 2))
sketch9.addConstraint(Sketcher.Constraint("Diameter", 0, Q("0.1695 in")))
sketch9.addConstraint(Sketcher.Constraint("DistanceX", 0, 3, 2, 3, Q("0.45 in")))
sketch9.addConstraint(Sketcher.Constraint("DistanceX", 1, 3, 0, 3, Q("2.875 in")))
sketch9.addConstraint(Sketcher.Constraint("DistanceY", -1, 1, 0, 3, Q("19.2125 in")))
sketch9.addConstraint(Sketcher.Constraint("DistanceY", -1, 1, 1, 3, 525.55775))
sketch9.addConstraint(Sketcher.Constraint("DistanceY", -1, 1, 2, 3, 558.95827))
sketch9.addConstraint(Sketcher.Constraint("DistanceX", 0, 3, -1, 1, 558.526748))
doc.recompute()
hole4 = doc.addObject("PartDesign::Hole", "Hole003")
body.addObject(hole4)
hole4.Profile = sketch9
hole4.ThreadType = "None"
hole4.setExpression("Diameter", "Params.hole4_diameter")
hole4.DepthType = "ThroughAll"

doc.recompute()
